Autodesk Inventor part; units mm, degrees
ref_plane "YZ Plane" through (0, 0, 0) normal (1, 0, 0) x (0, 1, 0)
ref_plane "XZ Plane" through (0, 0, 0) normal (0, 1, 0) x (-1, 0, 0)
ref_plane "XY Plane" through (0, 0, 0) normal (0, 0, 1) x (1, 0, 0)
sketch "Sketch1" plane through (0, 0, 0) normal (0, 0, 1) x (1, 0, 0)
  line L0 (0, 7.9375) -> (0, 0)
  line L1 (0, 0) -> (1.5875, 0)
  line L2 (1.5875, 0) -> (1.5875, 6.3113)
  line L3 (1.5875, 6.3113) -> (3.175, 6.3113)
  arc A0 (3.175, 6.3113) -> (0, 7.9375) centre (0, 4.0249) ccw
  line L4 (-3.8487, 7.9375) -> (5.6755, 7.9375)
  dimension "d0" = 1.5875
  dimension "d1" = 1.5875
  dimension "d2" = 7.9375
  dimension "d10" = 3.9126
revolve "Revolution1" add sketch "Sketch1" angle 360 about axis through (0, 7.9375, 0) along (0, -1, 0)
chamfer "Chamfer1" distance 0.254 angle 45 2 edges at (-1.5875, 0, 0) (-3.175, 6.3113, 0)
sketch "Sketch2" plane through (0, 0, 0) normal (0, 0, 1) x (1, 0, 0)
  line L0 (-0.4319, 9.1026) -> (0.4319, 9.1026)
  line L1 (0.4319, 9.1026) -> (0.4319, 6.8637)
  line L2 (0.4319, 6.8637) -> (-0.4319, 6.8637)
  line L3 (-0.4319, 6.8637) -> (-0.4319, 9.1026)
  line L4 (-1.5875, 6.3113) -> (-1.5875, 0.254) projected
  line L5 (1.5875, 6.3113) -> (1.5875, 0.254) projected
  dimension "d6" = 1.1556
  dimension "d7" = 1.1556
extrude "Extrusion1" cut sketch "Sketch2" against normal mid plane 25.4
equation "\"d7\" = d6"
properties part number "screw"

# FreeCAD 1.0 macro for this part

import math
import FreeCAD as App
import Part
import Sketcher

V = App.Vector
Q = App.Units.Quantity


def edges_at(feature, points):
    """Names of the edges that pass closest to the given points."""
    edges = feature.Shape.Edges
    near = lambda p: min(range(len(edges)), key=lambda i: edges[i].distToShape(Part.Vertex(*p))[0])
    return sorted({f"Edge{near(p) + 1}" for p in points})


def add_polygon(sketch, points):
    """Adds a closed chain of lines whose ends are joined by coincident constraints."""
    first, n = sketch.GeometryCount, len(points)
    for a, b in zip(points, points[1:] + points[:1]):
        sketch.addGeometry(Part.LineSegment(App.Vector(*a, 0), App.Vector(*b, 0)), False)
    for i in range(n):
        sketch.addConstraint(Sketcher.Constraint("Coincident", first + i, 2, first + (i + 1) % n, 1))

doc = App.newDocument("Part")
body = doc.addObject("PartDesign::Body", "Body")

# Sketch on XY plane
sketch1 = body.newObject("Sketcher::SketchObject", "Sketch")
sketch1.AttachmentSupport = (doc.getObject("XY_Plane"), [""])
sketch1.MapMode = "FlatFace"
sketch1.addGeometry([
    Part.ArcOfCircle(Part.Circle(V(0, 4, 0), V(0, 0, 1), 3.9), math.radians(36), math.radians(90)),  # 0
    Part.LineSegment(V(0, 7.9, 0), V(0, 0, 0)),  # 1
    Part.LineSegment(V(0, 0, 0), V(1.6, 0, 0)),  # 2
    Part.LineSegment(V(1.6, 0, 0), V(1.6, 6.3, 0)),  # 3
    Part.LineSegment(V(1.6, 6.3, 0), V(3.2, 6.3, 0)),  # 4
], False)
sketch1.addConstraint([
    Sketcher.Constraint("Coincident", 0, 2, 1, 1),
    Sketcher.Constraint("Coincident", 1, 2, 2, 1),
    Sketcher.Constraint("Coincident", 2, 2, 3, 1),
    Sketcher.Constraint("Coincident", 3, 2, 4, 1),
    Sketcher.Constraint("Coincident", 4, 2, 0, 1),
    Sketcher.Constraint("Vertical", 1),
    Sketcher.Constraint("Horizontal", 2),
    Sketcher.Constraint("Vertical", 3),
    Sketcher.Constraint("Horizontal", 4),
    Sketcher.Constraint("Coincident", 1, 2, -1, 1),
    Sketcher.Constraint("PointOnObject", 0, 3, -2),
    Sketcher.Constraint("Equal", 2, 4),
    Sketcher.Constraint("DistanceX", 2, 1, 2, 2, Q("0.0625 in")),
    Sketcher.Constraint("DistanceY", 1, 2, 1, 1, Q("0.3125 in")),
    Sketcher.Constraint("Radius", 0, Q("3.9126 mm")),
])
revolution = body.newObject("PartDesign::Revolution", "Revolution")
revolution.Profile = sketch1
revolution.ReferenceAxis = (sketch1, ["V_Axis"])
revolution.Angle = 360
doc.recompute()

chamfer = body.newObject("PartDesign::Chamfer", "Chamfer")
chamfer.Base = (revolution, edges_at(revolution, [(-1.587, 0, 0), (-3.175, 6.311, 0)]))
chamfer.Size = Q("0.01 in")

# Sketch on XY plane
sketch2 = body.newObject("Sketcher::SketchObject", "Sketch001")
sketch2.AttachmentSupport = (doc.getObject("XY_Plane"), [""])
sketch2.MapMode = "FlatFace"
add_polygon(sketch2, [(0.4, 9.1), (-0.4, 9.1), (-0.4, 6.9), (0.4, 6.9)])  # lines 0-3
sketch2.addConstraint([
    Sketcher.Constraint("Horizontal", 0),
    Sketcher.Constraint("Vertical", 1),
    Sketcher.Constraint("Horizontal", 2),
    Sketcher.Constraint("Vertical", 3),
    Sketcher.Constraint("DistanceX", 0, 2, 0, 1, Q("0.034 in")),
    Sketcher.Constraint("DistanceX", 0, 2, -1, 1, Q("0.017 in")),
    Sketcher.Constraint("DistanceY", 1, 2, 1, 1, Q("2.239 mm")),
    Sketcher.Constraint("DistanceY", -1, 1, 0, 2, Q("9.1026 mm")),
])
pocket1 = body.newObject("PartDesign::Pocket", "Pocket")
pocket1.Profile = sketch2
pocket1.Length = Q("1 in")
pocket1.Midplane = True

doc.recompute()
